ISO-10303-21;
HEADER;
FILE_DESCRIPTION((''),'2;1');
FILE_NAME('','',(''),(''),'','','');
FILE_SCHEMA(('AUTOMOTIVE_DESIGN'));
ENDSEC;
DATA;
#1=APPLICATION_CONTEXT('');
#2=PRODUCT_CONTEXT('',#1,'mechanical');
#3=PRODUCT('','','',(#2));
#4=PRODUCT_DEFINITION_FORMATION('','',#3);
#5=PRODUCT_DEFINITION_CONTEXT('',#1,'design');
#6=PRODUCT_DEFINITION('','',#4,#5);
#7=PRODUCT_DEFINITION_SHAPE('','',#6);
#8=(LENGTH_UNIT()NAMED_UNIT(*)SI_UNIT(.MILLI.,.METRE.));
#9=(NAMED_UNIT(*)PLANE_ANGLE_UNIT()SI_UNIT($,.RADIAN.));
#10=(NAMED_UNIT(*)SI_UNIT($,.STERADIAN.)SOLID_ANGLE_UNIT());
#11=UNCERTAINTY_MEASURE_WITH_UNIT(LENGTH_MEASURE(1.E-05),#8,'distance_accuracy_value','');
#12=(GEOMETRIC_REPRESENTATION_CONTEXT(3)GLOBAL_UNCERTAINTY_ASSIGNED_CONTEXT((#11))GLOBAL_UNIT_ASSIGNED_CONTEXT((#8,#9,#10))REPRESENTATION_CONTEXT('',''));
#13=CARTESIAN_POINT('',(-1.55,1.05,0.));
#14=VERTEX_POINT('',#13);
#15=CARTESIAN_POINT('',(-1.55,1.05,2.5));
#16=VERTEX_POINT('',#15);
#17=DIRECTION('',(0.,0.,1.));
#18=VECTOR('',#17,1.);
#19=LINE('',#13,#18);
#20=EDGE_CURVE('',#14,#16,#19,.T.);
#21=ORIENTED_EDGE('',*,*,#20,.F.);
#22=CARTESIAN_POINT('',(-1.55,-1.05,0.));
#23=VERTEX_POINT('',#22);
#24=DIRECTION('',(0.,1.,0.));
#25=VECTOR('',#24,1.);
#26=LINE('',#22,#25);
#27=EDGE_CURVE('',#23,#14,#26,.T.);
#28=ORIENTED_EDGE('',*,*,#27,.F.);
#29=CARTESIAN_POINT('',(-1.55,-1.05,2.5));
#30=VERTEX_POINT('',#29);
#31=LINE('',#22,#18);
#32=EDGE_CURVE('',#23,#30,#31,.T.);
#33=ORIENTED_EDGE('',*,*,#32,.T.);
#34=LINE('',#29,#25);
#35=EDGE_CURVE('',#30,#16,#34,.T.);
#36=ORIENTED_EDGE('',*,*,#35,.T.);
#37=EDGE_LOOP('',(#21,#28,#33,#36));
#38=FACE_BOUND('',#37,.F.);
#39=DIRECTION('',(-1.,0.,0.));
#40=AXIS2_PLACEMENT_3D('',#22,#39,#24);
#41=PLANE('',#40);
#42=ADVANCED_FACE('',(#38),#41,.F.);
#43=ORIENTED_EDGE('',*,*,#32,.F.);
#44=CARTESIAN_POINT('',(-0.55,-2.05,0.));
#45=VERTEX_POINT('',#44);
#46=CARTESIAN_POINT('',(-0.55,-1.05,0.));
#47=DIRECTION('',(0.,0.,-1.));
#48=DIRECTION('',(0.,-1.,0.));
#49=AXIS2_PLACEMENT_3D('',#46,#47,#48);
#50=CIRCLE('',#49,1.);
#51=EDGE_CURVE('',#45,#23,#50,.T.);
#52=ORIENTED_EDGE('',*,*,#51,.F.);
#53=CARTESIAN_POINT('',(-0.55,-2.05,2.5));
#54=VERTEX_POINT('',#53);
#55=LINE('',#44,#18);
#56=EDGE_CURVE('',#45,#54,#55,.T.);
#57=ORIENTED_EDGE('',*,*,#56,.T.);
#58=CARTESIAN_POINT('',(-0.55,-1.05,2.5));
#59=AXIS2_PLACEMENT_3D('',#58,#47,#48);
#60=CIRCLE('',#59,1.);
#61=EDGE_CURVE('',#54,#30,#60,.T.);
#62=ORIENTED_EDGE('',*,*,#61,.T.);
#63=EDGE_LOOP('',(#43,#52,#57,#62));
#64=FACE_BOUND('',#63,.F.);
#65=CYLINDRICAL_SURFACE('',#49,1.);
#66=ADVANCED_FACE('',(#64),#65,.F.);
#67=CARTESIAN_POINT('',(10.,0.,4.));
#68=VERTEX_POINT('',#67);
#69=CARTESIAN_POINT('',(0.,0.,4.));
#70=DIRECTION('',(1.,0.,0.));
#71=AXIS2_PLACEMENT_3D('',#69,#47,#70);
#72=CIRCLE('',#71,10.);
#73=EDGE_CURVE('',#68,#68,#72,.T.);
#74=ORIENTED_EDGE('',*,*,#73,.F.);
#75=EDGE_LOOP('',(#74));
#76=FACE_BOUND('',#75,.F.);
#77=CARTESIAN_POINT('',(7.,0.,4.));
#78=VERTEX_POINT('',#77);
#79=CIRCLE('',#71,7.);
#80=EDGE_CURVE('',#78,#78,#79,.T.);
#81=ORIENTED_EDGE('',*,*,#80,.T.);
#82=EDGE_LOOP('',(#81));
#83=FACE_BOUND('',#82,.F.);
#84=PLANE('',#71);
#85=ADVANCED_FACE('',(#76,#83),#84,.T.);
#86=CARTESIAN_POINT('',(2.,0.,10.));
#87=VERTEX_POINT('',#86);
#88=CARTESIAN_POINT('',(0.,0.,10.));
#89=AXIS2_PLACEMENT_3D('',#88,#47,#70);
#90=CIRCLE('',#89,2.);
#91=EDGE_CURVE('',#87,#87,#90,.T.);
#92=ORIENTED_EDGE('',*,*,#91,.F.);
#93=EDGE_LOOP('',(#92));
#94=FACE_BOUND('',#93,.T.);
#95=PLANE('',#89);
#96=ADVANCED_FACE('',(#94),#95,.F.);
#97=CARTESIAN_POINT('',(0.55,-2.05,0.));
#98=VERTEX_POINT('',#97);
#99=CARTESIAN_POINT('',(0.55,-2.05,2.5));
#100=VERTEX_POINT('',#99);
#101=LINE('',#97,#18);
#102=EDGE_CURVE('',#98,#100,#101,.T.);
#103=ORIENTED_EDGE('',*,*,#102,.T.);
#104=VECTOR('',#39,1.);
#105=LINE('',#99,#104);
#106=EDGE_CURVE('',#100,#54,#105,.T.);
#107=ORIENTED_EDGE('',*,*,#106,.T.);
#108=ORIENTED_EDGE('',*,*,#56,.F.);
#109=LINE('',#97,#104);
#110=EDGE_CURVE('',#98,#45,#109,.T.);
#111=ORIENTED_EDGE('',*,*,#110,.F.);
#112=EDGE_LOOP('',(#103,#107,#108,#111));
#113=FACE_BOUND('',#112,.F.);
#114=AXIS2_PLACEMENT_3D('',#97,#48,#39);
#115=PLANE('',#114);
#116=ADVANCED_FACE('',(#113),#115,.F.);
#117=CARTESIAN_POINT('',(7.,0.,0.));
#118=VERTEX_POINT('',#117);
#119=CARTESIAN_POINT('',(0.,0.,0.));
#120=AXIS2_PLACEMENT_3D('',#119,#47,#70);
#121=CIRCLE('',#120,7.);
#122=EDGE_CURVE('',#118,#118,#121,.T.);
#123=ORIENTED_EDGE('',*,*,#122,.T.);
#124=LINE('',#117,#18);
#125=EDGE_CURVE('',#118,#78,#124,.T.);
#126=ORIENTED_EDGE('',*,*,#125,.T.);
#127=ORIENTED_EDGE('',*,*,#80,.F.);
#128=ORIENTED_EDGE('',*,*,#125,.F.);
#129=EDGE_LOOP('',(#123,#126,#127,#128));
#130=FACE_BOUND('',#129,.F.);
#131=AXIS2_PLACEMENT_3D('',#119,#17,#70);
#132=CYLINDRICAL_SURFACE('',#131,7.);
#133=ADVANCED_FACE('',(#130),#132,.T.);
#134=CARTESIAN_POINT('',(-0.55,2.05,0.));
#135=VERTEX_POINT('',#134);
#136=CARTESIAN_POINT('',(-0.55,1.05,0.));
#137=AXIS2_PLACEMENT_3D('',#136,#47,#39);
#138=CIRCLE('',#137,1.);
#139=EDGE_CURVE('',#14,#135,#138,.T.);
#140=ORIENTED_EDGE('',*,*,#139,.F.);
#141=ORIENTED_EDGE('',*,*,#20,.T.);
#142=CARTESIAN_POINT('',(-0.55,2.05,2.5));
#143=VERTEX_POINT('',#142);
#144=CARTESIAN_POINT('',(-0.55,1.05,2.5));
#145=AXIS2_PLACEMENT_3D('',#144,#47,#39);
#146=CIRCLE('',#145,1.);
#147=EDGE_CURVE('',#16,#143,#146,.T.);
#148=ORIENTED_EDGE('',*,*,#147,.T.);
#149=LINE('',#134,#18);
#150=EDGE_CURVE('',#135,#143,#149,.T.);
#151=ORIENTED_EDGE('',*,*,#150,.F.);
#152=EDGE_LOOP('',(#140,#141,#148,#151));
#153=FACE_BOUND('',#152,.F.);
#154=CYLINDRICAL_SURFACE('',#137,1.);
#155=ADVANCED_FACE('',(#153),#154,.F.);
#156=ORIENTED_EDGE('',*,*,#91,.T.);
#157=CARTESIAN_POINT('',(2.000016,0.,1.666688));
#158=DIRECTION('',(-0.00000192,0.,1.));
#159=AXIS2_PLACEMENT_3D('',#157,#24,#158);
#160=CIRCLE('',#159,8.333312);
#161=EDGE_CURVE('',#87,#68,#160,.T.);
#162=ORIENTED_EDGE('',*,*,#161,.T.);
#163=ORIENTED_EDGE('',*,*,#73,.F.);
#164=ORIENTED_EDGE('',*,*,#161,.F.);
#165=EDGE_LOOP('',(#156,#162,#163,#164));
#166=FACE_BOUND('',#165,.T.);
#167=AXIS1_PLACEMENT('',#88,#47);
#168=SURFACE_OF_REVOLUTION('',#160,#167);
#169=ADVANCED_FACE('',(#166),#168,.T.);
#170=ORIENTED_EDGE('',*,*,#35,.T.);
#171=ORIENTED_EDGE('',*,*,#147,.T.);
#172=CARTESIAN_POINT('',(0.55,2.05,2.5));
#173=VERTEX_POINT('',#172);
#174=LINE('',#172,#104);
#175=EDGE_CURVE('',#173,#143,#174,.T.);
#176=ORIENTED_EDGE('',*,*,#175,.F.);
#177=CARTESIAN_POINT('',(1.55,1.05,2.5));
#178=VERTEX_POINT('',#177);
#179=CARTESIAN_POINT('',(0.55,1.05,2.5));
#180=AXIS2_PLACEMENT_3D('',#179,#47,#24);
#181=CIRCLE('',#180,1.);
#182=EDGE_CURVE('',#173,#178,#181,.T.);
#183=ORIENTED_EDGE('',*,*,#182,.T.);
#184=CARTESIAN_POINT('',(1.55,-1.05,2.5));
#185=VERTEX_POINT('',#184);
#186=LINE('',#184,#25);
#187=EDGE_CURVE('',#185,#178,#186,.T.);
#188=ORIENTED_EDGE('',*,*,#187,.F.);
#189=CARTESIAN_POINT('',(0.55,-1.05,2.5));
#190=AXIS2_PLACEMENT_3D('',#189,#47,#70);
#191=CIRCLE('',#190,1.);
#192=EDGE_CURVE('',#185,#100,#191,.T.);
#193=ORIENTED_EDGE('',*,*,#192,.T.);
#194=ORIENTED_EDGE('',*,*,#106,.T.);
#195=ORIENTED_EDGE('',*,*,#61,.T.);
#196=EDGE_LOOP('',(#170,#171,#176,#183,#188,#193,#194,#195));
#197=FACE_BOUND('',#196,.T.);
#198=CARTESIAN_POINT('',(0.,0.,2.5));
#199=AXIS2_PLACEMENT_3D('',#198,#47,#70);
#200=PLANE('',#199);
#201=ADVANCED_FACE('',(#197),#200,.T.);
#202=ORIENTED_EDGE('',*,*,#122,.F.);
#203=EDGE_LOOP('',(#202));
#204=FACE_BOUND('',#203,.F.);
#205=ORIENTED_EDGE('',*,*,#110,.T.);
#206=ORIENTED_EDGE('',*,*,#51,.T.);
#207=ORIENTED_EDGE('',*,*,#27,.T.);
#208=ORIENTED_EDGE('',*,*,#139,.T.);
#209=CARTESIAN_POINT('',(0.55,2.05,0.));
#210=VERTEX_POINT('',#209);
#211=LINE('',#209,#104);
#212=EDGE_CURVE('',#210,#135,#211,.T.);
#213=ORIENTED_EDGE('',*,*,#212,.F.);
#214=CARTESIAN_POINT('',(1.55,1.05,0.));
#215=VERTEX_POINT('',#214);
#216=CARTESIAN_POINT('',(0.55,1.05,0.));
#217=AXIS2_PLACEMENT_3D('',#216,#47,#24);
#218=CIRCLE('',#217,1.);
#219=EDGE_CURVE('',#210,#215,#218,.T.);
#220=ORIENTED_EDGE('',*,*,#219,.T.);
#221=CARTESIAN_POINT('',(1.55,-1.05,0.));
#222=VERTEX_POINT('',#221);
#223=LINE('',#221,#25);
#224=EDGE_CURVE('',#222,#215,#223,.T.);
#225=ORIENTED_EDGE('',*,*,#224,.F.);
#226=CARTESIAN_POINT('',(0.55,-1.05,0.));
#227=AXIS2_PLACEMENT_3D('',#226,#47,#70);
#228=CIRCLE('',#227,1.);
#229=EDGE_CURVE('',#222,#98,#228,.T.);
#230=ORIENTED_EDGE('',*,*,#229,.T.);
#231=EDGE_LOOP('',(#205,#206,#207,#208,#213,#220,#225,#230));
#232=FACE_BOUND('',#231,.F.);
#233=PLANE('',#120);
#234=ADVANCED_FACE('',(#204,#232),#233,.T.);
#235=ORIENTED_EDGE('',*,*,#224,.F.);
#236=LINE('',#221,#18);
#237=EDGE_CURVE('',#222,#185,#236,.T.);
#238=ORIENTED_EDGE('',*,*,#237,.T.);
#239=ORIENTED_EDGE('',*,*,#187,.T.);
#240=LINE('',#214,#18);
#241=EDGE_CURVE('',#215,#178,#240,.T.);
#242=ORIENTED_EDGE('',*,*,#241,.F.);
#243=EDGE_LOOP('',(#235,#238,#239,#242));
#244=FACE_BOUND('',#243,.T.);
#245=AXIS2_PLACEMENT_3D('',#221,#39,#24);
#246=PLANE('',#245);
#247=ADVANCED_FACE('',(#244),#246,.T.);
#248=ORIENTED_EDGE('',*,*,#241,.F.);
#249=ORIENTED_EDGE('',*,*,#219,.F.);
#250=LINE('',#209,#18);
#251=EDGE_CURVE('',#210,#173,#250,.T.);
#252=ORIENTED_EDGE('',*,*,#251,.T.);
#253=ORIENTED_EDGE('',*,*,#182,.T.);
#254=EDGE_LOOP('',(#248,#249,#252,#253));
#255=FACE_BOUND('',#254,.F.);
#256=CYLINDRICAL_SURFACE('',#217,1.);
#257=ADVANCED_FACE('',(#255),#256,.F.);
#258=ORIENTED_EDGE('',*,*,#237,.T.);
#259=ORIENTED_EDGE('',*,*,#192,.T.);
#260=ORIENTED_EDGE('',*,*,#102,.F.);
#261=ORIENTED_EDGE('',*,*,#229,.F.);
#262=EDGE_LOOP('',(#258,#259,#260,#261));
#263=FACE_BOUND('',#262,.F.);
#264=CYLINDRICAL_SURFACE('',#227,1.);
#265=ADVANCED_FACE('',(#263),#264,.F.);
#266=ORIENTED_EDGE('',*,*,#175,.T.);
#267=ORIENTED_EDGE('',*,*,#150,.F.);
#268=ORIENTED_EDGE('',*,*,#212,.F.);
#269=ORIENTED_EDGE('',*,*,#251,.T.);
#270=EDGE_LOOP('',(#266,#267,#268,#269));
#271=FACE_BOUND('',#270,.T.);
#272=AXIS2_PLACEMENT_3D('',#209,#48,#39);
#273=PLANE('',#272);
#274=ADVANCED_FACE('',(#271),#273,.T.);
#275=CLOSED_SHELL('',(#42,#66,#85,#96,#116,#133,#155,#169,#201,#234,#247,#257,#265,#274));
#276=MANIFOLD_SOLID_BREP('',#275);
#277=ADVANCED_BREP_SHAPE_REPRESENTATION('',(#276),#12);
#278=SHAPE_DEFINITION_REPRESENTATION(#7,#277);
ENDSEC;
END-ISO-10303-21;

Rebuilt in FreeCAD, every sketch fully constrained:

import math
import FreeCAD as App
import Part
import Sketcher

V = App.Vector
Q = App.Units.Quantity

doc = App.newDocument("Part")
body = doc.addObject("PartDesign::Body", "Body")

# Sketch on XZ plane
sketch1 = body.newObject("Sketcher::SketchObject", "Sketch")
sketch1.AttachmentSupport = (doc.getObject("XZ_Plane"), [""])
sketch1.MapMode = "FlatFace"
sketch1.addGeometry(Part.LineSegment(V(7, 0, 0), V(0, 0, 0)), False)
sketch1.addGeometry(Part.LineSegment(V(0, 0, 0), V(0, 10, 0)), False)
sketch1.addGeometry(Part.LineSegment(V(0, 10, 0), V(2, 10, 0)), False)
sketch1.addGeometry(Part.ArcOfCircle(Part.Circle(V(2, 1.7, 0), V(0, 0, 1), 8.3), math.radians(16), math.radians(90)), False)
sketch1.addGeometry(Part.LineSegment(V(10, 4, 0), V(7, 4, 0)), False)
sketch1.addGeometry(Part.LineSegment(V(7, 4, 0), V(7, 0, 0)), False)
sketch1.addConstraint(Sketcher.Constraint("Coincident", 0, 2, 1, 1))
sketch1.addConstraint(Sketcher.Constraint("Coincident", 1, 2, 2, 1))
sketch1.addConstraint(Sketcher.Constraint("Tangent", 2, 2, 3, 2))
sketch1.addConstraint(Sketcher.Constraint("Coincident", 3, 1, 4, 1))
sketch1.addConstraint(Sketcher.Constraint("Coincident", 4, 2, 5, 1))
sketch1.addConstraint(Sketcher.Constraint("Coincident", 5, 2, 0, 1))
sketch1.addConstraint(Sketcher.Constraint("Horizontal", 0))
sketch1.addConstraint(Sketcher.Constraint("Vertical", 1))
sketch1.addConstraint(Sketcher.Constraint("Horizontal", 2))
sketch1.addConstraint(Sketcher.Constraint("Horizontal", 4))
sketch1.addConstraint(Sketcher.Constraint("Vertical", 5))
sketch1.addConstraint(Sketcher.Constraint("Coincident", 0, 2, -1, 1))
sketch1.addConstraint(Sketcher.Constraint("DistanceX", 0, 2, 0, 1, Q("7 mm")))
sketch1.addConstraint(Sketcher.Constraint("DistanceX", 2, 1, 2, 2, Q("2 mm")))
sketch1.addConstraint(Sketcher.Constraint("DistanceX", 4, 2, 4, 1, Q("3 mm")))
sketch1.addConstraint(Sketcher.Constraint("DistanceY", 1, 1, 1, 2, Q("10 mm")))
sketch1.addConstraint(Sketcher.Constraint("DistanceY", 5, 2, 5, 1, Q("4 mm")))
revolution = body.newObject("PartDesign::Revolution", "Revolution")
revolution.Profile = sketch1
revolution.ReferenceAxis = (sketch1, ["V_Axis"])
revolution.Angle = 360

# Sketch on XY plane
sketch2 = body.newObject("Sketcher::SketchObject", "Sketch001")
sketch2.AttachmentSupport = (doc.getObject("XY_Plane"), [""])
sketch2.MapMode = "FlatFace"
sketch2.addGeometry(Part.LineSegment(V(1.6, 1.1, 0), V(1.6, -1.1, 0)), False)
sketch2.addGeometry(Part.ArcOfCircle(Part.Circle(V(0.6, -1.1, 0), V(0, 0, 1), 1), math.radians(-90), math.radians(0)), False)
sketch2.addGeometry(Part.LineSegment(V(0.6, -2, 0), V(-0.6, -2, 0)), False)
sketch2.addGeometry(Part.ArcOfCircle(Part.Circle(V(-0.6, -1.1, 0), V(0, 0, 1), 1), math.radians(180), math.radians(270)), False)
sketch2.addGeometry(Part.LineSegment(V(-1.6, -1.1, 0), V(-1.6, 1.1, 0)), False)
sketch2.addGeometry(Part.ArcOfCircle(Part.Circle(V(-0.6, 1.1, 0), V(0, 0, 1), 1), math.radians(90), math.radians(180)), False)
sketch2.addGeometry(Part.LineSegment(V(-0.6, 2, 0), V(0.6, 2, 0)), False)
sketch2.addGeometry(Part.ArcOfCircle(Part.Circle(V(0.6, 1.1, 0), V(0, 0, 1), 1), math.radians(0), math.radians(90)), False)
sketch2.addConstraint(Sketcher.Constraint("Tangent", 0, 2, 1, 2))
sketch2.addConstraint(Sketcher.Constraint("Tangent", 1, 1, 2, 1))
sketch2.addConstraint(Sketcher.Constraint("Tangent", 2, 2, 3, 2))
sketch2.addConstraint(Sketcher.Constraint("Tangent", 3, 1, 4, 1))
sketch2.addConstraint(Sketcher.Constraint("Tangent", 4, 2, 5, 2))
sketch2.addConstraint(Sketcher.Constraint("Tangent", 5, 1, 6, 1))
sketch2.addConstraint(Sketcher.Constraint("Tangent", 6, 2, 7, 2))
sketch2.addConstraint(Sketcher.Constraint("Tangent", 7, 1, 0, 1))
sketch2.addConstraint(Sketcher.Constraint("Vertical", 0))
sketch2.addConstraint(Sketcher.Constraint("Horizontal", 2))
sketch2.addConstraint(Sketcher.Constraint("Vertical", 4))
sketch2.addConstraint(Sketcher.Constraint("Horizontal", 6))
sketch2.addConstraint(Sketcher.Constraint("Equal", 1, 3))
sketch2.addConstraint(Sketcher.Constraint("Equal", 3, 5))
sketch2.addConstraint(Sketcher.Constraint("Equal", 5, 7))
sketch2.addConstraint(Sketcher.Constraint("Symmetric", 1, 3, 5, 3, -1, 1))
sketch2.addConstraint(Sketcher.Constraint("Radius", 1, Q("1 mm")))
sketch2.addConstraint(Sketcher.Constraint("DistanceY", 1, 1, 7, 3, Q("3.1 mm")))
sketch2.addConstraint(Sketcher.Constraint("DistanceX", 2, 2, 2, 1, Q("1.1 mm")))
pocket1 = body.newObject("PartDesign::Pocket", "Pocket")
pocket1.Profile = sketch2
pocket1.Length = 2.5
pocket1.Reversed = True

doc.recompute()
